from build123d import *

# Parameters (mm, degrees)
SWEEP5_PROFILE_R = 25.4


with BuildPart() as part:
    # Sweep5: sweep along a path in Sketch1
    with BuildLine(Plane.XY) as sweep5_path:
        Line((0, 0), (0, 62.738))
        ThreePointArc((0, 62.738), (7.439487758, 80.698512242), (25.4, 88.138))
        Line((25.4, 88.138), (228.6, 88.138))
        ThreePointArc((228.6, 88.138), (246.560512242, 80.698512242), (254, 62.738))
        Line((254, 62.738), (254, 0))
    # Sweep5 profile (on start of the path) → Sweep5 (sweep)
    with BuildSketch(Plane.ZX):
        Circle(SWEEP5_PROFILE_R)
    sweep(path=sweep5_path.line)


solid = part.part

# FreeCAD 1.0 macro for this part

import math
import FreeCAD as App
import Part
import Sketcher

V = App.Vector
Q = App.Units.Quantity

doc = App.newDocument("Part")
body = doc.addObject("PartDesign::Body", "Body")

# Sketch on XZ plane
sketch1 = doc.addObject("Sketcher::SketchObject", "Sketch")
body.addObject(sketch1)
sketch1.AttachmentSupport = (doc.XZ_Plane, [""])
sketch1.MapMode = "FlatFace"
sketch1.addGeometry(Part.Circle(V(0, 0, 0), V(0, 0, 1), 25), False)
sketch1.addConstraint(Sketcher.Constraint("Coincident", 0, 3, -1, 1))
sketch1.addConstraint(Sketcher.Constraint("Diameter", 0, Q("2 in")))

# Sketch on XY plane
sketch2 = doc.addObject("Sketcher::SketchObject", "Sketch001")
body.addObject(sketch2)
sketch2.AttachmentSupport = (doc.XY_Plane, [""])
sketch2.MapMode = "FlatFace"
sketch2.addGeometry(Part.LineSegment(V(0, 0, 0), V(0, 63, 0)), False)
sketch2.addGeometry(Part.ArcOfCircle(Part.Circle(V(25, 63, 0), V(0, 0, 1), 25), math.radians(90), math.radians(180)), False)
sketch2.addGeometry(Part.LineSegment(V(25, 88, 0), V(229, 88, 0)), False)
sketch2.addGeometry(Part.ArcOfCircle(Part.Circle(V(229, 63, 0), V(0, 0, 1), 25), math.radians(0), math.radians(90)), False)
sketch2.addGeometry(Part.LineSegment(V(254, 63, 0), V(254, 0, 0)), False)
sketch2.addConstraint(Sketcher.Constraint("Tangent", 0, 2, 1, 2))
sketch2.addConstraint(Sketcher.Constraint("Tangent", 1, 1, 2, 1))
sketch2.addConstraint(Sketcher.Constraint("Tangent", 2, 2, 3, 2))
sketch2.addConstraint(Sketcher.Constraint("Tangent", 3, 1, 4, 1))
sketch2.addConstraint(Sketcher.Constraint("Vertical", 0))
sketch2.addConstraint(Sketcher.Constraint("Horizontal", 2))
sketch2.addConstraint(Sketcher.Constraint("Vertical", 4))
sketch2.addConstraint(Sketcher.Constraint("Coincident", 0, 1, -1, 1))
sketch2.addConstraint(Sketcher.Constraint("Equal", 1, 3))
sketch2.addConstraint(Sketcher.Constraint("PointOnObject", 4, 2, -1))
sketch2.addConstraint(Sketcher.Constraint("Radius", 1, Q("1 in")))
sketch2.addConstraint(Sketcher.Constraint("DistanceX", 2, 1, 2, 2, Q("8 in")))
sketch2.addConstraint(Sketcher.Constraint("DistanceY", 0, 1, 0, 2, Q("2.47 in")))
doc.recompute()

additivepipe = doc.addObject("PartDesign::AdditivePipe", "AdditivePipe")
body.addObject(additivepipe)
additivepipe.Profile = sketch1
additivepipe.Spine = (sketch2, ["Edge1", "Edge2", "Edge3", "Edge4", "Edge5"])

doc.recompute()
